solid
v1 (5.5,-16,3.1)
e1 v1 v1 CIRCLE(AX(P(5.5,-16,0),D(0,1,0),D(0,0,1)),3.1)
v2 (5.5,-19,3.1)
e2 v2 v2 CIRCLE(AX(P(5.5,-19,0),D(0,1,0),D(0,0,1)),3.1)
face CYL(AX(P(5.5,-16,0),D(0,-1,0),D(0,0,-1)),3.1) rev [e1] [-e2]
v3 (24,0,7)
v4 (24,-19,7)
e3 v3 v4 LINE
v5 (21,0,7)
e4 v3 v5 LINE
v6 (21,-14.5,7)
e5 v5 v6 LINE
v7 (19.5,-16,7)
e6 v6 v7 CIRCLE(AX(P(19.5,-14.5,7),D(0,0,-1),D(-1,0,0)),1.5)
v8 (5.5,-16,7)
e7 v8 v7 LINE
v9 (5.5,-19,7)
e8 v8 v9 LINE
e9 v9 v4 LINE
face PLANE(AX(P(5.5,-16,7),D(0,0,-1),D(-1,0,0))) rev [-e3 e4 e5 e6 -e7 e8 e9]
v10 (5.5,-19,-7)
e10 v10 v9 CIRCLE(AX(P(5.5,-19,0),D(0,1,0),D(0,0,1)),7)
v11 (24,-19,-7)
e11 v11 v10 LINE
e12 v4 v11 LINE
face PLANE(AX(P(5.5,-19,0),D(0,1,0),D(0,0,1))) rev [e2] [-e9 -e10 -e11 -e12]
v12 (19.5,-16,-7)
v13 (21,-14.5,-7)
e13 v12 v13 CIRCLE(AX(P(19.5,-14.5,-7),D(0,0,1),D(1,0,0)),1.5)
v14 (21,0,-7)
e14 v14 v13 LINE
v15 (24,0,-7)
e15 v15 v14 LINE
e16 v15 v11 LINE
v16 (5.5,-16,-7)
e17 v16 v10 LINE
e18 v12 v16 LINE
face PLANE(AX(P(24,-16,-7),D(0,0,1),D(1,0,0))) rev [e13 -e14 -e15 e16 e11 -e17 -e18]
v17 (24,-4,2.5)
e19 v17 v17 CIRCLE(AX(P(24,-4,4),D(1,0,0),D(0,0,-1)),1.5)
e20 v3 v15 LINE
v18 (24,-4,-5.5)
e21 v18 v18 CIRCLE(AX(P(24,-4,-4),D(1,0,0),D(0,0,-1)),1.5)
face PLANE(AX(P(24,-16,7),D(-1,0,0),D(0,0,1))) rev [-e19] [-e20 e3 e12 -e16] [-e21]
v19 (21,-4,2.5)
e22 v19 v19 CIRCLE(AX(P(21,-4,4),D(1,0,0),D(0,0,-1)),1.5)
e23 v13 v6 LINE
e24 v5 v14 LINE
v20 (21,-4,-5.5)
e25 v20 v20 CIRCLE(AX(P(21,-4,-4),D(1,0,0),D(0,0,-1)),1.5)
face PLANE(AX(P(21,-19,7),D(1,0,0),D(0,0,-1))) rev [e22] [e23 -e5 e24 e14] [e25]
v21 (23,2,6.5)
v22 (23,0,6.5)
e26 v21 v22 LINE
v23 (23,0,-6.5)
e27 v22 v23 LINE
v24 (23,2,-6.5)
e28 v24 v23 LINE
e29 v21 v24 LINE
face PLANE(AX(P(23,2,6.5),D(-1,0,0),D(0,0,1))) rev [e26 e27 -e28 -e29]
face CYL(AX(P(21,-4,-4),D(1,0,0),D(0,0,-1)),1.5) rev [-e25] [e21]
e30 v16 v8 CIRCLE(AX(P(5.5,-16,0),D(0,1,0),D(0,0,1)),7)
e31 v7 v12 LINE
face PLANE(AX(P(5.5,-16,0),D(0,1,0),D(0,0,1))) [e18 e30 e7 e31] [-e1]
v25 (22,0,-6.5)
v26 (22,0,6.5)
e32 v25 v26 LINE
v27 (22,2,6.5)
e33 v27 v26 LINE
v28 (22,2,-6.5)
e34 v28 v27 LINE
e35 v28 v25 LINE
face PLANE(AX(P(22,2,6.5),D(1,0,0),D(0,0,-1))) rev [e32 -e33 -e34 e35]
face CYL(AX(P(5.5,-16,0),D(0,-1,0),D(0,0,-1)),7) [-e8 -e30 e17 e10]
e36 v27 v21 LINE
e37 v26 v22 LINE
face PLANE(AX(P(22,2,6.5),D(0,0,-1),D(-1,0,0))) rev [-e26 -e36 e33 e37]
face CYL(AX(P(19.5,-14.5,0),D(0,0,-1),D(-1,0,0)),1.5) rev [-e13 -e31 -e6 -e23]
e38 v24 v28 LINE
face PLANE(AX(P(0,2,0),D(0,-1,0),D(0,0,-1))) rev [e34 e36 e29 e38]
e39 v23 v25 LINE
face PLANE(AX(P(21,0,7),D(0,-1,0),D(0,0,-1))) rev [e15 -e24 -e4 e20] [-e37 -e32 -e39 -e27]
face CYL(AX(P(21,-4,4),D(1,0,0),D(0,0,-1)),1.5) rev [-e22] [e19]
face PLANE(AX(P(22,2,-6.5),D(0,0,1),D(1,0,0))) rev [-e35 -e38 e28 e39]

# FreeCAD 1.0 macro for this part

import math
import FreeCAD as App
import Part
import Sketcher

V = App.Vector


def edges_at(feature, points):
    """Names of the edges that pass closest to the given points."""
    edges = feature.Shape.Edges
    near = lambda p: min(range(len(edges)), key=lambda i: edges[i].distToShape(Part.Vertex(*p))[0])
    return sorted({f"Edge{near(p) + 1}" for p in points})


def add_polygon(sketch, points):
    """Adds a closed chain of lines whose ends are joined by coincident constraints."""
    first, n = sketch.GeometryCount, len(points)
    for a, b in zip(points, points[1:] + points[:1]):
        sketch.addGeometry(Part.LineSegment(App.Vector(*a, 0), App.Vector(*b, 0)), False)
    for i in range(n):
        sketch.addConstraint(Sketcher.Constraint("Coincident", first + i, 2, first + (i + 1) % n, 1))

doc = App.newDocument("Part")
body = doc.addObject("PartDesign::Body", "Body")

# Sketch on XZ plane
sketch1 = body.newObject("Sketcher::SketchObject", "Sketch")
sketch1.AttachmentSupport = (doc.getObject("XZ_Plane"), [""])
sketch1.MapMode = "FlatFace"
sketch1.AttachmentOffset = App.Placement(V(0, 0, 19), App.Rotation())
sketch1.addGeometry([
    Part.LineSegment(V(6, 7, 0), V(24, 7, 0)),
    Part.LineSegment(V(24, 7, 0), V(24, -7, 0)),
    Part.LineSegment(V(24, -7, 0), V(6, -7, 0)),
    Part.ArcOfCircle(Part.Circle(V(6, 0, 0), V(0, 0, 1), 7), math.radians(90), math.radians(270)),
], False)
sketch1.addConstraint([
    Sketcher.Constraint("Coincident", 0, 2, 1, 1),
    Sketcher.Constraint("Coincident", 1, 2, 2, 1),
    Sketcher.Constraint("Tangent", 2, 2, 3, 2),
    Sketcher.Constraint("Tangent", 3, 1, 0, 1),
    Sketcher.Constraint("Horizontal", 0),
    Sketcher.Constraint("Vertical", 1),
    Sketcher.Constraint("Horizontal", 2),
    Sketcher.Constraint("PointOnObject", 3, 3, -1),
    Sketcher.Constraint("Radius", 3, 7.0),
    Sketcher.Constraint("DistanceX", 0, 1, 0, 2, 18.5),
    Sketcher.Constraint("DistanceX", -1, 1, 0, 2, 24.0),
])
pad1 = body.newObject("PartDesign::Pad", "Pad")
pad1.Profile = sketch1
pad1.Length = 3
pad1.Reversed = True

# Sketch on XY plane
sketch2 = body.newObject("Sketcher::SketchObject", "Sketch001")
sketch2.AttachmentSupport = (doc.getObject("XY_Plane"), [""])
sketch2.MapMode = "FlatFace"
add_polygon(sketch2, [(21, 0), (21, -19), (24, -19), (24, 0)])  # lines 0-3
sketch2.addConstraint([
    Sketcher.Constraint("Vertical", 0),
    Sketcher.Constraint("Horizontal", 1),
    Sketcher.Constraint("Vertical", 2),
    Sketcher.Constraint("Horizontal", 3),
    Sketcher.Constraint("PointOnObject", 2, 2, -1),
    Sketcher.Constraint("DistanceX", 1, 1, 1, 2, 3.0),
    Sketcher.Constraint("DistanceY", 0, 2, 0, 1, 19.0),
    Sketcher.Constraint("DistanceX", -1, 1, 0, 2, 21.0),
])
pad2 = body.newObject("PartDesign::Pad", "Pad001")
pad2.Profile = sketch2
pad2.Length = 14
pad2.Midplane = True

# Sketch on XZ plane
sketch3 = body.newObject("Sketcher::SketchObject", "Sketch002")
sketch3.AttachmentSupport = (doc.getObject("XZ_Plane"), [""])
sketch3.MapMode = "FlatFace"
add_polygon(sketch3, [(22, -6.5), (22, 6.5), (23, 6.5), (23, -6.5)])  # lines 0-3
sketch3.addConstraint([
    Sketcher.Constraint("Vertical", 0),
    Sketcher.Constraint("Horizontal", 1),
    Sketcher.Constraint("Vertical", 2),
    Sketcher.Constraint("Horizontal", 3),
    Sketcher.Constraint("DistanceX", 1, 1, 1, 2, 1.0),
    Sketcher.Constraint("DistanceY", 0, 1, 0, 2, 13.0),
    Sketcher.Constraint("DistanceX", -1, 1, 0, 2, 22.0),
    Sketcher.Constraint("DistanceY", -1, 1, 0, 2, 6.5),
])
pad3 = body.newObject("PartDesign::Pad", "Pad002")
pad3.Profile = sketch3
pad3.Length = 2
pad3.Reversed = True

# Sketch on XZ plane
sketch4 = body.newObject("Sketcher::SketchObject", "Sketch003")
sketch4.AttachmentSupport = (doc.getObject("XZ_Plane"), [""])
sketch4.MapMode = "FlatFace"
sketch4.AttachmentOffset = App.Placement(V(0, 0, 19), App.Rotation())
sketch4.addGeometry(Part.Circle(V(5.5, 0, 0), V(0, 0, 1), 3.1), False)
sketch4.addConstraint([
    Sketcher.Constraint("PointOnObject", 0, 3, -1),
    Sketcher.Constraint("Diameter", 0, 6.2),
    Sketcher.Constraint("DistanceX", -1, 1, 0, 3, 5.5),
])
pocket1 = body.newObject("PartDesign::Pocket", "Pocket")
pocket1.Profile = sketch4
pocket1.Length = 3

# Sketch on YZ plane
sketch5 = body.newObject("Sketcher::SketchObject", "Sketch004")
sketch5.AttachmentSupport = (doc.getObject("YZ_Plane"), [""])
sketch5.MapMode = "FlatFace"
sketch5.AttachmentOffset = App.Placement(V(0, 0, 24), App.Rotation())
sketch5.addGeometry([
    Part.Circle(V(-4, 4, 0), V(0, 0, 1), 1.5),
    Part.Circle(V(-4, -4, 0), V(0, 0, 1), 1.5),
], False)
sketch5.addConstraint([
    Sketcher.Constraint("Equal", 0, 1),
    Sketcher.Constraint("Symmetric", 0, 3, 1, 3, -1),
    Sketcher.Constraint("Diameter", 0, 3.0),
    Sketcher.Constraint("DistanceX", 0, 3, -1, 1, 4.0),
    Sketcher.Constraint("DistanceY", -1, 1, 0, 3, 4.0),
])
pocket2 = body.newObject("PartDesign::Pocket", "Pocket001")
pocket2.Profile = sketch5
pocket2.Length = 3
doc.recompute()

fillet = body.newObject("PartDesign::Fillet", "Fillet")
fillet.Base = (pocket2, edges_at(pocket2, [(21, -16, 0)]))
fillet.Radius = 1.5

doc.recompute()
